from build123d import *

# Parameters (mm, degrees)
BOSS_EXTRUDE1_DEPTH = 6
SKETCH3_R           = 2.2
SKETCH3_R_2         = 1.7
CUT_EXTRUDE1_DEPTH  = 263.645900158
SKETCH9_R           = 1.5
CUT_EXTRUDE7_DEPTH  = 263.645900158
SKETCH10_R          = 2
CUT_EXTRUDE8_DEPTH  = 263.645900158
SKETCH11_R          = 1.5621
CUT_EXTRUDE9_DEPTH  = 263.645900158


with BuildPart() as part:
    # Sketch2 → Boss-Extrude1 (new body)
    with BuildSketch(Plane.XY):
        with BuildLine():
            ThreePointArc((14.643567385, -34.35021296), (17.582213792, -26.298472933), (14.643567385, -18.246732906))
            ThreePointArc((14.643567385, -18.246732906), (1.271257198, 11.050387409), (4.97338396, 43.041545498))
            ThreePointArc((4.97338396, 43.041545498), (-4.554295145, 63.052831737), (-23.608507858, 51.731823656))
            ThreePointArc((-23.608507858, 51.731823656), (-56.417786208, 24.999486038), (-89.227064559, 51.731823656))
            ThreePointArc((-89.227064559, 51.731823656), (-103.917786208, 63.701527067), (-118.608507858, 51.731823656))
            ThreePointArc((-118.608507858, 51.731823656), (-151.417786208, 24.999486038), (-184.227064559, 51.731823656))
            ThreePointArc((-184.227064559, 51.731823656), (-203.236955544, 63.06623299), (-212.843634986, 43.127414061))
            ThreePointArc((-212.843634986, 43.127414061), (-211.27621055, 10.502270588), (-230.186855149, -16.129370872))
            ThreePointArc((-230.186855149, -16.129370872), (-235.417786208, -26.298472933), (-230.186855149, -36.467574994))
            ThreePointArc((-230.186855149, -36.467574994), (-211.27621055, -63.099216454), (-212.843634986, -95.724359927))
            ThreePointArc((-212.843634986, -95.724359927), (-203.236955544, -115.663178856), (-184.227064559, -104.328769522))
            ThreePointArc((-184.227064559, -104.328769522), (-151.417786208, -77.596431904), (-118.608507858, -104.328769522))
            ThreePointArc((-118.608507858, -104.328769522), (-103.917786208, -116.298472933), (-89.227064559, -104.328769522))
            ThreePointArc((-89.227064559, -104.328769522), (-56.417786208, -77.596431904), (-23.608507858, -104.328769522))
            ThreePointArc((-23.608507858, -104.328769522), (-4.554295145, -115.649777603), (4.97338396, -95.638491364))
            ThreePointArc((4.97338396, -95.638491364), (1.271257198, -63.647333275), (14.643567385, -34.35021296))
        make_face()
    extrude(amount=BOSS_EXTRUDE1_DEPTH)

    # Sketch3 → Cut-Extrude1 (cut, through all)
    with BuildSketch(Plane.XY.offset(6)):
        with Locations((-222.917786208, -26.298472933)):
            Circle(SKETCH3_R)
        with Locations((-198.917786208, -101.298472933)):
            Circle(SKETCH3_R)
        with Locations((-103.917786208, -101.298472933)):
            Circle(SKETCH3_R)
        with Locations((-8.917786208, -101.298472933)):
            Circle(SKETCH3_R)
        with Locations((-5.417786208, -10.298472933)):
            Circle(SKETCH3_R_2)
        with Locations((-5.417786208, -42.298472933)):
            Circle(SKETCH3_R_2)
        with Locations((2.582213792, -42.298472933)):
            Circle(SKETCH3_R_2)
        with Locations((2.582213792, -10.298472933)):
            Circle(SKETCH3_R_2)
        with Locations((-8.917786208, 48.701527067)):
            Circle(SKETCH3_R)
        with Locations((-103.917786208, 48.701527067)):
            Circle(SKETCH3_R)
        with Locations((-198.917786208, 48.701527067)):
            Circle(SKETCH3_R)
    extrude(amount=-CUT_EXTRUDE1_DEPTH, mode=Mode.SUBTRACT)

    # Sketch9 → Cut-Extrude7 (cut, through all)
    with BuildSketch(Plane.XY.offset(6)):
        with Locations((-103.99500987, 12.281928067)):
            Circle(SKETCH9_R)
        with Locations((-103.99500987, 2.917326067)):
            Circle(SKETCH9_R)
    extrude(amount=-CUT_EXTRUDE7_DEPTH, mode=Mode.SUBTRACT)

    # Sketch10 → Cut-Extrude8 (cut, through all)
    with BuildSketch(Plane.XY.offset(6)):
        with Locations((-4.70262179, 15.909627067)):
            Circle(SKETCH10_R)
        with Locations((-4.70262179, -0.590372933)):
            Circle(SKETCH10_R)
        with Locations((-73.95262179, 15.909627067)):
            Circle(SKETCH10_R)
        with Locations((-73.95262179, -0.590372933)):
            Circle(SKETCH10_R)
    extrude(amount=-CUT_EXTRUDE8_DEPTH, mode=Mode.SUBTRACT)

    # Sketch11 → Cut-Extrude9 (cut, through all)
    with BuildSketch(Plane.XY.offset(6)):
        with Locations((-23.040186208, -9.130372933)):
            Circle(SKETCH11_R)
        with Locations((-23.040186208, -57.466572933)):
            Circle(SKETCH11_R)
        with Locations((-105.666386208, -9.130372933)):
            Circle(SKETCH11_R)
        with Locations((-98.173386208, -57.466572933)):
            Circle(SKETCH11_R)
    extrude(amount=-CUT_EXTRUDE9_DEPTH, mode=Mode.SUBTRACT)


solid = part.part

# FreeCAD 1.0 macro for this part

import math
import FreeCAD as App
import Part
import Sketcher

V = App.Vector
Q = App.Units.Quantity

doc = App.newDocument("Part")
body = doc.addObject("PartDesign::Body", "Body")

# Sketch on XY plane
sketch1 = body.newObject("Sketcher::SketchObject", "Sketch")
sketch1.AttachmentSupport = (doc.getObject("XY_Plane"), [""])
sketch1.MapMode = "FlatFace"
sketch1.addGeometry([
    Part.ArcOfCircle(Part.Circle(V(5, -26, 0), V(0, 0, 1), 12), math.radians(-40), math.radians(40)),  # 0
    Part.ArcOfCircle(Part.Circle(V(61, 20, 0), V(0, 0, 1), 60), math.radians(158), math.radians(220)),  # 1
    Part.ArcOfCircle(Part.Circle(V(-9, 49, 0), V(0, 0, 1), 15), math.radians(-22), math.radians(168)),  # 2
    Part.ArcOfCircle(Part.Circle(V(-56, 58, 0), V(0, 0, 1), 34), math.radians(-168), math.radians(-12)),  # 3
    Part.ArcOfCircle(Part.Circle(V(-104, 49, 0), V(0, 0, 1), 15), math.radians(12), math.radians(168)),  # 4
    Part.ArcOfCircle(Part.Circle(V(-151, 58, 0), V(0, 0, 1), 34), math.radians(-168), math.radians(-12)),  # 5
    Part.ArcOfCircle(Part.Circle(V(-199, 49, 0), V(0, 0, 1), 15), math.radians(12), math.radians(202)),  # 6
    Part.ArcOfCircle(Part.Circle(V(-259, 25, 0), V(0, 0, 1), 50), math.radians(-54), math.radians(22)),  # 7
    Part.ArcOfCircle(Part.Circle(V(-223, -26, 0), V(0, 0, 1), 12), math.radians(126), math.radians(234)),  # 8
    Part.ArcOfCircle(Part.Circle(V(-259, -77, 0), V(0, 0, 1), 50), math.radians(-22), math.radians(54)),  # 9
    Part.ArcOfCircle(Part.Circle(V(-199, -101, 0), V(0, 0, 1), 15), math.radians(158), math.radians(348)),  # 10
    Part.ArcOfCircle(Part.Circle(V(-151, -111, 0), V(0, 0, 1), 34), math.radians(12), math.radians(168)),  # 11
    Part.ArcOfCircle(Part.Circle(V(-104, -101, 0), V(0, 0, 1), 15), math.radians(-168), math.radians(-12)),  # 12
    Part.ArcOfCircle(Part.Circle(V(-56, -111, 0), V(0, 0, 1), 34), math.radians(12), math.radians(168)),  # 13
    Part.ArcOfCircle(Part.Circle(V(-9, -101, 0), V(0, 0, 1), 15), math.radians(-168), math.radians(22)),  # 14
    Part.ArcOfCircle(Part.Circle(V(61, -73, 0), V(0, 0, 1), 60), math.radians(140), math.radians(202)),  # 15
], False)
sketch1.addConstraint([
    Sketcher.Constraint("Tangent", 0, 2, 1, 2),
    Sketcher.Constraint("Tangent", 1, 1, 2, 1),
    Sketcher.Constraint("Tangent", 2, 2, 3, 2),
    Sketcher.Constraint("Tangent", 3, 1, 4, 1),
    Sketcher.Constraint("Tangent", 4, 2, 5, 2),
    Sketcher.Constraint("Tangent", 5, 1, 6, 1),
    Sketcher.Constraint("Tangent", 6, 2, 7, 2),
    Sketcher.Constraint("Tangent", 7, 1, 8, 1),
    Sketcher.Constraint("Tangent", 8, 2, 9, 2),
    Sketcher.Constraint("Tangent", 9, 1, 10, 1),
    Sketcher.Constraint("Tangent", 10, 2, 11, 2),
    Sketcher.Constraint("Tangent", 11, 1, 12, 1),
    Sketcher.Constraint("Tangent", 12, 2, 13, 2),
    Sketcher.Constraint("Tangent", 13, 1, 14, 1),
    Sketcher.Constraint("Tangent", 14, 2, 15, 2),
    Sketcher.Constraint("Tangent", 15, 1, 0, 1),
    Sketcher.Constraint("Equal", 2, 4),
    Sketcher.Constraint("Equal", 3, 5),
    Sketcher.Constraint("Equal", 4, 6),
    Sketcher.Constraint("Equal", 0, 8),
    Sketcher.Constraint("Equal", 7, 9),
    Sketcher.Constraint("Equal", 6, 10),
    Sketcher.Constraint("Equal", 5, 11),
    Sketcher.Constraint("Equal", 10, 12),
    Sketcher.Constraint("Equal", 11, 13),
    Sketcher.Constraint("Equal", 12, 14),
    Sketcher.Constraint("Equal", 1, 15),
    Sketcher.Constraint("Horizontal", 2, 3, 4, 3),
    Sketcher.Constraint("Horizontal", 3, 3, 5, 3),
    Sketcher.Constraint("Horizontal", 4, 3, 6, 3),
    Sketcher.Constraint("Horizontal", 0, 3, 8, 3),
    Sketcher.Constraint("Horizontal", 10, 3, 12, 3),
    Sketcher.Constraint("Horizontal", 11, 3, 13, 3),
    Sketcher.Constraint("Horizontal", 12, 3, 14, 3),
    Sketcher.Constraint("Vertical", 7, 3, 9, 3),
    Sketcher.Constraint("Vertical", 6, 3, 10, 3),
    Sketcher.Constraint("Vertical", 5, 3, 11, 3),
    Sketcher.Constraint("Radius", 1, Q("60 mm")),
    Sketcher.Constraint("Radius", 2, Q("15 mm")),
    Sketcher.Constraint("Radius", 7, Q("50 mm")),
    Sketcher.Constraint("Radius", 0, Q("12.5 mm")),
    Sketcher.Constraint("Radius", 3, Q("33.5 mm")),
    Sketcher.Constraint("DistanceX", 2, 3, 0, 3, Q("14 mm")),
    Sketcher.Constraint("DistanceY", 0, 3, 2, 3, Q("75 mm")),
    Sketcher.Constraint("DistanceX", 4, 3, 2, 3, Q("95 mm")),
    Sketcher.Constraint("DistanceX", 8, 3, 6, 3, Q("24 mm")),
    Sketcher.Constraint("DistanceY", -1, 1, 1, 3, Q("20.401619 mm")),
    Sketcher.Constraint("DistanceX", 7, 3, -1, 1, Q("259.263131 mm")),
])
pad1 = body.newObject("PartDesign::Pad", "Pad")
pad1.Profile = sketch1
pad1.Length = 6

# Sketch on XY plane
sketch2 = body.newObject("Sketcher::SketchObject", "Sketch001")
sketch2.AttachmentSupport = (doc.getObject("XY_Plane"), [""])
sketch2.MapMode = "FlatFace"
sketch2.AttachmentOffset = App.Placement(V(0, 0, 6), App.Rotation())
sketch2.addGeometry([
    Part.Circle(V(-222.9, -26.3, 0), V(0, 0, 1), 2.2),  # 0
    Part.Circle(V(-198.9, -101.3, 0), V(0, 0, 1), 2.2),  # 1
    Part.Circle(V(-103.9, -101.3, 0), V(0, 0, 1), 2.2),  # 2
    Part.Circle(V(-8.9, -101.3, 0), V(0, 0, 1), 2.2),  # 3
    Part.Circle(V(-5.4, -10.3, 0), V(0, 0, 1), 1.7),  # 4
    Part.Circle(V(-5.4, -42.3, 0), V(0, 0, 1), 1.7),  # 5
    Part.Circle(V(2.6, -42.3, 0), V(0, 0, 1), 1.7),  # 6
    Part.Circle(V(2.6, -10.3, 0), V(0, 0, 1), 1.7),  # 7
    Part.Circle(V(-8.9, 48.7, 0), V(0, 0, 1), 2.2),  # 8
    Part.Circle(V(-103.9, 48.7, 0), V(0, 0, 1), 2.2),  # 9
    Part.Circle(V(-198.9, 48.7, 0), V(0, 0, 1), 2.2),  # 10
], False)
sketch2.addConstraint([
    Sketcher.Constraint("Equal", 0, 1),
    Sketcher.Constraint("Equal", 1, 2),
    Sketcher.Constraint("Equal", 2, 3),
    Sketcher.Constraint("Equal", 4, 5),
    Sketcher.Constraint("Equal", 5, 6),
    Sketcher.Constraint("Equal", 6, 7),
    Sketcher.Constraint("Equal", 3, 8),
    Sketcher.Constraint("Equal", 8, 9),
    Sketcher.Constraint("Equal", 9, 10),
    Sketcher.Constraint("Horizontal", 1, 3, 2, 3),
    Sketcher.Constraint("Horizontal", 2, 3, 3, 3),
    Sketcher.Constraint("Horizontal", 5, 3, 6, 3),
    Sketcher.Constraint("Horizontal", 4, 3, 7, 3),
    Sketcher.Constraint("Horizontal", 8, 3, 9, 3),
    Sketcher.Constraint("Horizontal", 9, 3, 10, 3),
    Sketcher.Constraint("Vertical", 4, 3, 5, 3),
    Sketcher.Constraint("Vertical", 6, 3, 7, 3),
    Sketcher.Constraint("Vertical", 3, 3, 8, 3),
    Sketcher.Constraint("Vertical", 2, 3, 9, 3),
    Sketcher.Constraint("Vertical", 1, 3, 10, 3),
    Sketcher.Constraint("Diameter", 0, Q("4.4 mm")),
    Sketcher.Constraint("Diameter", 4, Q("3.4 mm")),
    Sketcher.Constraint("DistanceX", 0, 3, 1, 3, Q("24 mm")),
    Sketcher.Constraint("DistanceY", 1, 3, 0, 3, Q("75 mm")),
    Sketcher.Constraint("DistanceX", 1, 3, 2, 3, Q("95 mm")),
    Sketcher.Constraint("DistanceX", 2, 3, 3, 3, Q("95 mm")),
    Sketcher.Constraint("DistanceY", 3, 3, 4, 3, Q("91 mm")),
    Sketcher.Constraint("DistanceY", 5, 3, 4, 3, Q("32 mm")),
    Sketcher.Constraint("DistanceX", 5, 3, 6, 3, Q("8 mm")),
    Sketcher.Constraint("DistanceY", 4, 3, 8, 3, Q("59 mm")),
    Sketcher.Constraint("DistanceX", 3, 3, 4, 3, Q("3.5 mm")),
    Sketcher.Constraint("DistanceX", 0, 3, -1, 1, Q("222.917786 mm")),
    Sketcher.Constraint("DistanceY", 0, 3, -1, 1, Q("26.298473 mm")),
])
pocket1 = body.newObject("PartDesign::Pocket", "Pocket")
pocket1.Profile = sketch2
pocket1.Type = "ThroughAll"

# Sketch on XY plane
sketch3 = body.newObject("Sketcher::SketchObject", "Sketch002")
sketch3.AttachmentSupport = (doc.getObject("XY_Plane"), [""])
sketch3.MapMode = "FlatFace"
sketch3.AttachmentOffset = App.Placement(V(0, 0, 6), App.Rotation())
sketch3.addGeometry([
    Part.Circle(V(-104, 12.3, 0), V(0, 0, 1), 1.5),
    Part.Circle(V(-104, 2.9, 0), V(0, 0, 1), 1.5),
], False)
sketch3.addConstraint([
    Sketcher.Constraint("Equal", 0, 1),
    Sketcher.Constraint("Vertical", 0, 3, 1, 3),
    Sketcher.Constraint("Diameter", 0, Q("3 mm")),
    Sketcher.Constraint("DistanceX", 0, 3, -1, 1, Q("103.99501 mm")),
    Sketcher.Constraint("DistanceY", -1, 1, 0, 3, Q("12.281928 mm")),
    Sketcher.Constraint("DistanceY", -1, 1, 1, 3, Q("2.917326 mm")),
])
pocket2 = body.newObject("PartDesign::Pocket", "Pocket001")
pocket2.Profile = sketch3
pocket2.Type = "ThroughAll"

# Sketch on XY plane
sketch4 = body.newObject("Sketcher::SketchObject", "Sketch003")
sketch4.AttachmentSupport = (doc.getObject("XY_Plane"), [""])
sketch4.MapMode = "FlatFace"
sketch4.AttachmentOffset = App.Placement(V(0, 0, 6), App.Rotation())
sketch4.addGeometry([
    Part.Circle(V(-4.7, 15.9, 0), V(0, 0, 1), 2),
    Part.Circle(V(-4.7, -0.6, 0), V(0, 0, 1), 2),
    Part.Circle(V(-74, 15.9, 0), V(0, 0, 1), 2),
    Part.Circle(V(-74, -0.6, 0), V(0, 0, 1), 2),
], False)
sketch4.addConstraint([
    Sketcher.Constraint("Equal", 0, 1),
    Sketcher.Constraint("Equal", 1, 2),
    Sketcher.Constraint("Equal", 2, 3),
    Sketcher.Constraint("Horizontal", 0, 3, 2, 3),
    Sketcher.Constraint("Horizontal", 1, 3, 3, 3),
    Sketcher.Constraint("Vertical", 0, 3, 1, 3),
    Sketcher.Constraint("Vertical", 2, 3, 3, 3),
    Sketcher.Constraint("Diameter", 0, Q("4 mm")),
    Sketcher.Constraint("DistanceY", 1, 3, 0, 3, Q("16.5 mm")),
    Sketcher.Constraint("DistanceX", 2, 3, 0, 3, Q("69.25 mm")),
    Sketcher.Constraint("DistanceX", 0, 3, -1, 1, Q("4.702622 mm")),
    Sketcher.Constraint("DistanceY", -1, 1, 0, 3, Q("15.909627 mm")),
])
pocket3 = body.newObject("PartDesign::Pocket", "Pocket002")
pocket3.Profile = sketch4
pocket3.Type = "ThroughAll"

# Sketch on XY plane
sketch5 = body.newObject("Sketcher::SketchObject", "Sketch004")
sketch5.AttachmentSupport = (doc.getObject("XY_Plane"), [""])
sketch5.MapMode = "FlatFace"
sketch5.AttachmentOffset = App.Placement(V(0, 0, 6), App.Rotation())
sketch5.addGeometry([
    Part.Circle(V(-23, -9.1, 0), V(0, 0, 1), 1.6),
    Part.Circle(V(-23, -57.5, 0), V(0, 0, 1), 1.6),
    Part.Circle(V(-105.7, -9.1, 0), V(0, 0, 1), 1.6),
    Part.Circle(V(-98.2, -57.5, 0), V(0, 0, 1), 1.6),
], False)
sketch5.addConstraint([
    Sketcher.Constraint("Equal", 0, 1),
    Sketcher.Constraint("Equal", 1, 2),
    Sketcher.Constraint("Equal", 2, 3),
    Sketcher.Constraint("Horizontal", 0, 3, 2, 3),
    Sketcher.Constraint("Horizontal", 1, 3, 3, 3),
    Sketcher.Constraint("Vertical", 0, 3, 1, 3),
    Sketcher.Constraint("Diameter", 0, Q("3.1242 mm")),
    Sketcher.Constraint("DistanceX", 2, 3, 3, 3, Q("7.493 mm")),
    Sketcher.Constraint("DistanceY", 1, 3, 0, 3, Q("48.3362 mm")),
    Sketcher.Constraint("DistanceX", 2, 3, 0, 3, Q("82.6262 mm")),
    Sketcher.Constraint("DistanceX", 0, 3, -1, 1, Q("23.040186 mm")),
    Sketcher.Constraint("DistanceY", 0, 3, -1, 1, Q("9.130373 mm")),
])
pocket4 = body.newObject("PartDesign::Pocket", "Pocket003")
pocket4.Profile = sketch5
pocket4.Type = "ThroughAll"

doc.recompute()
